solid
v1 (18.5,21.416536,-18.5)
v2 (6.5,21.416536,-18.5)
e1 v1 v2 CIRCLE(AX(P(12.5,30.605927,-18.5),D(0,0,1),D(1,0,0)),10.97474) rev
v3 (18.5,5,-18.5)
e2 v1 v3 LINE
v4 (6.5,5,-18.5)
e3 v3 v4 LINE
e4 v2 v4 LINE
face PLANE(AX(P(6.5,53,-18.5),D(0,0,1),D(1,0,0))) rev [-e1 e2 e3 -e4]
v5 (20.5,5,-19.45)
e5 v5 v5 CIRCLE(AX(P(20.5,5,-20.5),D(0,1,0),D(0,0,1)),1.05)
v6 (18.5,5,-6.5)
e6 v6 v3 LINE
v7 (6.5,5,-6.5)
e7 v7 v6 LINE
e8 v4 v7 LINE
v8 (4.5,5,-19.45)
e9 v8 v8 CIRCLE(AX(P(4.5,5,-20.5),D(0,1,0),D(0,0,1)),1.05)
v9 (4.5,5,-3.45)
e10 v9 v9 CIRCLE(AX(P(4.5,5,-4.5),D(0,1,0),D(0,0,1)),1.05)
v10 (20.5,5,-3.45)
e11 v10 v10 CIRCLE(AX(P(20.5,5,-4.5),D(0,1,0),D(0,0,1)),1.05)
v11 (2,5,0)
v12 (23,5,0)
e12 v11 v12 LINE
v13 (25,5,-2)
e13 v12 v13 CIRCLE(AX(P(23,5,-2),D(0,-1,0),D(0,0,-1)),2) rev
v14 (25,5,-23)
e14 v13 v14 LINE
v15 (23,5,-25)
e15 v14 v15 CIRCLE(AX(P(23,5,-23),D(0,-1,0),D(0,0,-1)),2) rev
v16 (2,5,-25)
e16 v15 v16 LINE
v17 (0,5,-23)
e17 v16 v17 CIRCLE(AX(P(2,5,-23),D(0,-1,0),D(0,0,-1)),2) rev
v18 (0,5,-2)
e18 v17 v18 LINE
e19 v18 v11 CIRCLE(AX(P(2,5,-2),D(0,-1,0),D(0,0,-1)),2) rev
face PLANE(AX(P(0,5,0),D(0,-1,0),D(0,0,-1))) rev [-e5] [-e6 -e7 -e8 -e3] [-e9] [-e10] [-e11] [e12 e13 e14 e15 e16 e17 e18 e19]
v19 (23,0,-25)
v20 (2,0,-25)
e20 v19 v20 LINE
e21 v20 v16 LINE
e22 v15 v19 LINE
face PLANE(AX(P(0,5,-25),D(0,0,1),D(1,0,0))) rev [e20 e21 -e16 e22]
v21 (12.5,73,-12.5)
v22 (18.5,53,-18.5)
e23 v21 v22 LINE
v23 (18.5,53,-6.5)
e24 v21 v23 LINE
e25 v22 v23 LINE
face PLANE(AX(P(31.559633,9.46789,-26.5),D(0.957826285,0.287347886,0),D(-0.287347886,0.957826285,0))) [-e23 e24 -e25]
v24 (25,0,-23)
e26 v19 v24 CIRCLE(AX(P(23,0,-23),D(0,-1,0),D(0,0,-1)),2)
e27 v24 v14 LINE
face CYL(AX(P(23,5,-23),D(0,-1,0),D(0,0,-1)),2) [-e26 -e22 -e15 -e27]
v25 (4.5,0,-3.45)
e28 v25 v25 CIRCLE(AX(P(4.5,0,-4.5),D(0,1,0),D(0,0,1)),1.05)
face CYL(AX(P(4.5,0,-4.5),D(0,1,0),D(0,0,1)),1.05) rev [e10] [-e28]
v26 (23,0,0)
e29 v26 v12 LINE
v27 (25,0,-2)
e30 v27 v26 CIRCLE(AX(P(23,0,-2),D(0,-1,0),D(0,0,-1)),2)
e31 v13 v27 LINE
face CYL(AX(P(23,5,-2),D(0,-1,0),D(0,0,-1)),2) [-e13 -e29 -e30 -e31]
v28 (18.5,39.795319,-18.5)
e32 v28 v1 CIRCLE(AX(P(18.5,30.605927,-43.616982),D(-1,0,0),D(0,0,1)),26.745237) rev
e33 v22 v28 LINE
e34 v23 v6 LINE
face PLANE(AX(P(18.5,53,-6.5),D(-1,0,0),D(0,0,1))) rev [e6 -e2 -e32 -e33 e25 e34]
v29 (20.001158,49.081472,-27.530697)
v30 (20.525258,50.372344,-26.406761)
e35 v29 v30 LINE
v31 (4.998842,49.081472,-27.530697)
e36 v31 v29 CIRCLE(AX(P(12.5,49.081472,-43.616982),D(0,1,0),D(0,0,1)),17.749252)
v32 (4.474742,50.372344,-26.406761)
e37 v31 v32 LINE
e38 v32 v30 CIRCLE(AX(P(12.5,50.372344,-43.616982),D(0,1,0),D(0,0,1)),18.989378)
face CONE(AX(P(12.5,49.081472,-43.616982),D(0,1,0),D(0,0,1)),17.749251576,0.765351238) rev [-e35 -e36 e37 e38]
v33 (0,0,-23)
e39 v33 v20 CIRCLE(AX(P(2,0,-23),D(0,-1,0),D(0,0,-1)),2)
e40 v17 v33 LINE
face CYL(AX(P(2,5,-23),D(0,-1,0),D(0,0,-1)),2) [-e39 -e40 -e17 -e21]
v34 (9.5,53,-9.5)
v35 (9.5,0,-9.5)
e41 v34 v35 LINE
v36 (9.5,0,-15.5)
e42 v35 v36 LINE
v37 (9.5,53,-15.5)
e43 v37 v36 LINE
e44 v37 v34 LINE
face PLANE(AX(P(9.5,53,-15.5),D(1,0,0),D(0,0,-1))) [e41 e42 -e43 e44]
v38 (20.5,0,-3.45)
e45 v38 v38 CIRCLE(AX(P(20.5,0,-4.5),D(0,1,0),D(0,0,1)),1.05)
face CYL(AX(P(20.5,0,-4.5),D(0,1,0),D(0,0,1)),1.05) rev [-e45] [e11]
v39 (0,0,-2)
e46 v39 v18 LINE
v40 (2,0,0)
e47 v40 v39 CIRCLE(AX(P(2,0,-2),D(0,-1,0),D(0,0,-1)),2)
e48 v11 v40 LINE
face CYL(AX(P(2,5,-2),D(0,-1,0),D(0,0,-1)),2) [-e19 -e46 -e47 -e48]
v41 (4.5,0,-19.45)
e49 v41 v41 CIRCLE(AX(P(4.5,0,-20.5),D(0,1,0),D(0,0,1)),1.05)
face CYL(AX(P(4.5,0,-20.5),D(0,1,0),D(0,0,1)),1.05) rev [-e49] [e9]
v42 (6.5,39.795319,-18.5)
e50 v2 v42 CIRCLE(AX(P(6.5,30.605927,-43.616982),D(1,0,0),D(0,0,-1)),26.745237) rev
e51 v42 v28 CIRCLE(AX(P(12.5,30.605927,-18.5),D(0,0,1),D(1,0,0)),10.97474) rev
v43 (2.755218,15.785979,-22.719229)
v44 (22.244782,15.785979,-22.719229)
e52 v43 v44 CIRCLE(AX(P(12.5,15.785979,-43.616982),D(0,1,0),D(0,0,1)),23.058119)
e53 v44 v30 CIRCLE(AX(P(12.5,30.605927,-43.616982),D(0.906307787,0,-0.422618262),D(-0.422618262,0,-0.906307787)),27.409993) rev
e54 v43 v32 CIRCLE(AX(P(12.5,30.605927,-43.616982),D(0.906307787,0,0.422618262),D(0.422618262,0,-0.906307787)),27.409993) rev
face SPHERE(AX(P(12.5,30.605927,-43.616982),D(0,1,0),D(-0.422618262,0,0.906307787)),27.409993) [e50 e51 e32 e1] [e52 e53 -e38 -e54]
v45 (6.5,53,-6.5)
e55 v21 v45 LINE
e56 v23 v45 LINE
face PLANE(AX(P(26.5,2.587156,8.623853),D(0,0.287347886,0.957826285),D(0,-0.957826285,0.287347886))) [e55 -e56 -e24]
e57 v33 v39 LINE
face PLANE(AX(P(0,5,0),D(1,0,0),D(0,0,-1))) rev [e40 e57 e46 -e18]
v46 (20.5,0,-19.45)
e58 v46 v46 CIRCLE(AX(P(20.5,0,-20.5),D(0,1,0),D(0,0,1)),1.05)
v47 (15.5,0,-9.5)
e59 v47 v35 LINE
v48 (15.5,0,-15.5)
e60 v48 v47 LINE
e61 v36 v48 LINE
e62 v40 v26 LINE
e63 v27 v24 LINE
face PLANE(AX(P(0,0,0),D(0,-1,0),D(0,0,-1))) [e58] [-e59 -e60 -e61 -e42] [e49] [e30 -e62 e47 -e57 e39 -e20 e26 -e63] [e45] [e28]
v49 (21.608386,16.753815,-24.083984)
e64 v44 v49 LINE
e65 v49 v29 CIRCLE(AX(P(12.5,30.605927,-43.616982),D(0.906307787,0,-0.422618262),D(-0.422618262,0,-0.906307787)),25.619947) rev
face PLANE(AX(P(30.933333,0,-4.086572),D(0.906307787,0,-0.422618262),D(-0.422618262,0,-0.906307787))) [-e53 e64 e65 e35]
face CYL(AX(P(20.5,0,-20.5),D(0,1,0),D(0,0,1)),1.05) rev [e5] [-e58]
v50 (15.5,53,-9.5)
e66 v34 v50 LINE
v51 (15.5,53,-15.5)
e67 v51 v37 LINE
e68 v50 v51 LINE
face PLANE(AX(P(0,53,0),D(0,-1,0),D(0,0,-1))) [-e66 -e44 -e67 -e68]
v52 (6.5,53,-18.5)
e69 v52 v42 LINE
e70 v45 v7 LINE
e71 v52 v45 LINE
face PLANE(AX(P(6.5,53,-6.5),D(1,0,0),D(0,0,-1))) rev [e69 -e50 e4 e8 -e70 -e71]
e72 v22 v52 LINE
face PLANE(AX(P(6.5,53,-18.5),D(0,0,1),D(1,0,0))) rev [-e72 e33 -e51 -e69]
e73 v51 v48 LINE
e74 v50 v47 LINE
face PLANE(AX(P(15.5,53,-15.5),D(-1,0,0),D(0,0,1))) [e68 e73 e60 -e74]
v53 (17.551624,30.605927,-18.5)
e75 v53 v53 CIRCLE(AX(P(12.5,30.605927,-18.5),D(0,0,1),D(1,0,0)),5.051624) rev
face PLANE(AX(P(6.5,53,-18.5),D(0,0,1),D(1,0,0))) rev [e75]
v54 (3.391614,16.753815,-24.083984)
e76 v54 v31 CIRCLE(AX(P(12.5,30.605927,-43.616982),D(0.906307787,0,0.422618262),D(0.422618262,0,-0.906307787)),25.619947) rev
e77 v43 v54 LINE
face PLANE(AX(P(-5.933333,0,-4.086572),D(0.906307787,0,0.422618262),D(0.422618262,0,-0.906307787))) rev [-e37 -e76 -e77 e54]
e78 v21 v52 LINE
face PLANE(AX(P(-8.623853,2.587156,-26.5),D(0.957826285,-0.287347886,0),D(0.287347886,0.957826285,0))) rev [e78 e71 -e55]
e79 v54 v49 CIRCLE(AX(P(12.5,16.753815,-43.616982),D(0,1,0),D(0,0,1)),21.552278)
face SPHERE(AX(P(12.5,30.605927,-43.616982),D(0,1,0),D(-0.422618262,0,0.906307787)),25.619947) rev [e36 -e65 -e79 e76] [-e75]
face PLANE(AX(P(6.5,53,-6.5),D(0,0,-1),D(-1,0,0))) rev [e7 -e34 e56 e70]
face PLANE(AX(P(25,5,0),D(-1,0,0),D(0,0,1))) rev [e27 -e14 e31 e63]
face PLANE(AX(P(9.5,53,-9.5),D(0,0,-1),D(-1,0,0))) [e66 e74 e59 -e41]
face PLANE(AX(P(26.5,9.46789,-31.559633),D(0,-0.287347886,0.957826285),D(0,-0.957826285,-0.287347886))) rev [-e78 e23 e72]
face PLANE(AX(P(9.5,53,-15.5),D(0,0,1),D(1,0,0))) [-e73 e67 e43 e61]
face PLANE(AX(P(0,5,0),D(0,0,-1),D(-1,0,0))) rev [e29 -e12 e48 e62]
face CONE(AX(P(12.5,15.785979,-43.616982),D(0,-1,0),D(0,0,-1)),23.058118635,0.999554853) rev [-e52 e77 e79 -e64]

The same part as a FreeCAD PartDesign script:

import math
import FreeCAD as App
import Part
import Sketcher
from FreeCAD import Vector
Q = App.Units.Quantity


def edges_at(feature, points):
    """Names of the edges that pass closest to the given points."""
    edges = feature.Shape.Edges
    near = lambda p: min(range(len(edges)), key=lambda i: edges[i].distToShape(Part.Vertex(*p))[0])
    return sorted({f"Edge{near(p) + 1}" for p in points})


def add_polygon(sketch, points):
    """Adds a closed chain of lines whose ends are joined by coincident constraints."""
    first, n = sketch.GeometryCount, len(points)
    for a, b in zip(points, points[1:] + points[:1]):
        sketch.addGeometry(Part.LineSegment(App.Vector(*a, 0), App.Vector(*b, 0)), False)
    for i in range(n):
        sketch.addConstraint(Sketcher.Constraint("Coincident", first + i, 2, first + (i + 1) % n, 1))

doc = App.newDocument("Part")
body = doc.addObject("PartDesign::Body", "Body")

sketch1 = body.newObject("Sketcher::SketchObject", "Sketch")
sketch1.AttachmentSupport = (doc.getObject("XZ_Plane"), [""])
sketch1.MapMode = "FlatFace"
add_polygon(sketch1, [(0, -25), (0, 0), (25, 0), (25, -25)])
sketch1.addConstraint([
    Sketcher.Constraint("Vertical", 0),
    Sketcher.Constraint("Horizontal", 1),
    Sketcher.Constraint("Vertical", 2),
    Sketcher.Constraint("Horizontal", 3),
    Sketcher.Constraint("Coincident", 0, 2, -1, 1),
    Sketcher.Constraint("Equal", 3, 0),
    Sketcher.Constraint("DistanceX", 1, 1, 1, 2, Q("25 mm")),
])
pad1 = body.newObject("PartDesign::Pad", "Pad")
pad1.Profile = sketch1
pad1.Length = 5
pad1.Reversed = True

sketch2 = body.newObject("Sketcher::SketchObject", "Sketch001")
sketch2.AttachmentSupport = (doc.getObject("XZ_Plane"), [""])
sketch2.MapMode = "FlatFace"
sketch2.AttachmentOffset = App.Placement(Vector(0, 0, -5), App.Rotation())
sketch2.addGeometry([
    Part.Circle(Vector(4.5, -4.5, 0), Vector(0, 0, 1), 1.05),
    Part.Circle(Vector(20.5, -4.5, 0), Vector(0, 0, 1), 1.05),
    Part.Circle(Vector(20.5, -20.5, 0), Vector(0, 0, 1), 1.05),
    Part.Circle(Vector(4.5, -20.5, 0), Vector(0, 0, 1), 1.05),
], False)
sketch2.addConstraint([
    Sketcher.Constraint("Equal", 0, 1),
    Sketcher.Constraint("Equal", 1, 2),
    Sketcher.Constraint("Equal", 2, 3),
    Sketcher.Constraint("Horizontal", 0, 3, 1, 3),
    Sketcher.Constraint("Horizontal", 2, 3, 3, 3),
    Sketcher.Constraint("Vertical", 1, 3, 2, 3),
    Sketcher.Constraint("Vertical", 0, 3, 3, 3),
    Sketcher.Constraint("Diameter", 0, Q("2.1 mm")),
    Sketcher.Constraint("DistanceX", 0, 3, 1, 3, Q("16 mm")),
    Sketcher.Constraint("DistanceY", 2, 3, 1, 3, Q("16 mm")),
    Sketcher.Constraint("DistanceX", -1, 1, 0, 3, Q("4.5 mm")),
    Sketcher.Constraint("DistanceY", 0, 3, -1, 1, Q("4.5 mm")),
])
pocket1 = body.newObject("PartDesign::Pocket", "Pocket")
pocket1.Profile = sketch2
pocket1.Length = 5
pocket1.Reversed = True
doc.recompute()

fillet = body.newObject("PartDesign::Fillet", "Fillet")
fillet.Base = (pocket1, edges_at(pocket1, [
    (0, 2.5, -25),
    (25, 2.5, -25),
    (25, 2.5, 0),
    (0, 2.5, 0),
]))
fillet.Radius = 2

sketch3 = body.newObject("Sketcher::SketchObject", "Sketch002")
sketch3.AttachmentSupport = (doc.getObject("XZ_Plane"), [""])
sketch3.MapMode = "FlatFace"
sketch3.AttachmentOffset = App.Placement(Vector(0, 0, -5), App.Rotation())
add_polygon(sketch3, [(6.5, -18.5), (6.5, -6.5), (18.5, -6.5), (18.5, -18.5)])
add_polygon(sketch3, [(15.5, -9.5), (9.5, -9.5), (9.5, -15.5), (15.5, -15.5)])
sketch3.addConstraint([
    Sketcher.Constraint("Vertical", 0),
    Sketcher.Constraint("Horizontal", 1),
    Sketcher.Constraint("Vertical", 2),
    Sketcher.Constraint("Horizontal", 3),
    Sketcher.Constraint("Horizontal", 4),
    Sketcher.Constraint("Vertical", 5),
    Sketcher.Constraint("Horizontal", 6),
    Sketcher.Constraint("Vertical", 7),
    Sketcher.Constraint("Equal", 3, 0),
    Sketcher.Constraint("Equal", 6, 5),
    Sketcher.Constraint("DistanceX", 1, 1, 1, 2, Q("12 mm")),
    Sketcher.Constraint("DistanceX", 4, 2, 4, 1, Q("6 mm")),
    Sketcher.Constraint("DistanceX", 0, 2, 4, 2, Q("3 mm")),
    Sketcher.Constraint("DistanceY", 4, 2, 0, 2, Q("3 mm")),
    Sketcher.Constraint("DistanceX", -1, 1, 0, 2, Q("6.5 mm")),
    Sketcher.Constraint("DistanceY", 0, 2, -1, 1, Q("6.5 mm")),
])
pad2 = body.newObject("PartDesign::Pad", "Pad001")
pad2.Profile = sketch3
pad2.Length = 48
pad2.Reversed = True

sketch4 = body.newObject("Sketcher::SketchObject", "Sketch003")
sketch4.AttachmentSupport = (doc.getObject("XZ_Plane"), [""])
sketch4.MapMode = "FlatFace"
add_polygon(sketch4, [(15.5, -15.5), (15.5, -9.5), (9.5, -9.5), (9.5, -15.5)])
sketch4.addConstraint([
    Sketcher.Constraint("Vertical", 0),
    Sketcher.Constraint("Horizontal", 1),
    Sketcher.Constraint("Vertical", 2),
    Sketcher.Constraint("Horizontal", 3),
    Sketcher.Constraint("Equal", 3, 0),
    Sketcher.Constraint("DistanceX", 1, 2, 1, 1, Q("6 mm")),
    Sketcher.Constraint("DistanceX", -1, 1, 0, 2, Q("15.5 mm")),
    Sketcher.Constraint("DistanceY", 0, 2, -1, 1, Q("9.5 mm")),
])
pocket2 = body.newObject("PartDesign::Pocket", "Pocket001")
pocket2.Profile = sketch4
pocket2.Length = 10

sketch5 = body.newObject("Sketcher::SketchObject", "Sketch004")
sketch5.AttachmentSupport = (doc.getObject("XZ_Plane"), [""])
sketch5.MapMode = "FlatFace"
sketch5.AttachmentOffset = App.Placement(Vector(0, 0, -53), App.Rotation())
add_polygon(sketch5, [(6.5, -18.5), (6.5, -6.5), (18.5, -6.5), (18.5, -18.5)])
sketch5.addConstraint([
    Sketcher.Constraint("Vertical", 0),
    Sketcher.Constraint("Horizontal", 1),
    Sketcher.Constraint("Vertical", 2),
    Sketcher.Constraint("Horizontal", 3),
    Sketcher.Constraint("Equal", 3, 0),
    Sketcher.Constraint("DistanceX", 1, 1, 1, 2, Q("12 mm")),
    Sketcher.Constraint("DistanceX", -1, 1, 0, 2, Q("6.5 mm")),
    Sketcher.Constraint("DistanceY", 0, 2, -1, 1, Q("6.5 mm")),
])
pad3 = body.newObject("PartDesign::Pad", "Pad002")
pad3.Profile = sketch5
pad3.Length = 20
pad3.Reversed = True

sketch6 = body.newObject("Sketcher::SketchObject", "Sketch005")
sketch6.AttachmentSupport = (doc.getObject("XY_Plane"), [""])
sketch6.MapMode = "FlatFace"
sketch6.AttachmentOffset = App.Placement(Vector(0, 0, -6.5), App.Rotation())
add_polygon(sketch6, [(18.5, 73), (12.5, 73), (18.5, 53)])
add_polygon(sketch6, [(6.5, 53), (12.5, 73), (6.5, 73)])
sketch6.addConstraint([
    Sketcher.Constraint("Horizontal", 0),
    Sketcher.Constraint("Vertical", 2),
    Sketcher.Constraint("Horizontal", 4),
    Sketcher.Constraint("Vertical", 5),
    Sketcher.Constraint("Coincident", 3, 2, 0, 2),
    Sketcher.Constraint("Horizontal", 1, 2, 5, 2),
    Sketcher.Constraint("Equal", 0, 4),
    Sketcher.Constraint("DistanceX", 0, 2, 0, 1, Q("6 mm")),
    Sketcher.Constraint("DistanceY", 2, 1, 2, 2, Q("20 mm")),
    Sketcher.Constraint("DistanceY", -1, 1, 0, 2, Q("73 mm")),
    Sketcher.Constraint("DistanceX", -1, 1, 0, 2, Q("12.5 mm")),
])
pocket3 = body.newObject("PartDesign::Pocket", "Pocket002")
pocket3.Profile = sketch6
pocket3.Length = 20

sketch7 = body.newObject("Sketcher::SketchObject", "Sketch006")
sketch7.AttachmentSupport = (doc.getObject("YZ_Plane"), [""])
sketch7.MapMode = "FlatFace"
sketch7.AttachmentOffset = App.Placement(Vector(0, 0, 6.5), App.Rotation())
add_polygon(sketch7, [(53, -6.5), (73, -6.5), (73, -12.5)])
add_polygon(sketch7, [(73, -18.5), (53, -18.5), (73, -12.5)])
sketch7.addConstraint([
    Sketcher.Constraint("Horizontal", 0),
    Sketcher.Constraint("Vertical", 1),
    Sketcher.Constraint("Horizontal", 3),
    Sketcher.Constraint("Vertical", 5),
    Sketcher.Constraint("Coincident", 4, 2, 1, 2),
    Sketcher.Constraint("Vertical", 2, 2, 3, 2),
    Sketcher.Constraint("Equal", 1, 5),
    Sketcher.Constraint("DistanceX", 0, 1, 0, 2, Q("20 mm")),
    Sketcher.Constraint("DistanceY", 1, 2, 1, 1, Q("6 mm")),
    Sketcher.Constraint("DistanceX", -1, 1, 0, 2, Q("73 mm")),
    Sketcher.Constraint("DistanceY", 0, 2, -1, 1, Q("6.5 mm")),
])
pocket4 = body.newObject("PartDesign::Pocket", "Pocket003")
pocket4.Profile = sketch7
pocket4.Length = 20
pocket4.Reversed = True

sketch8 = body.newObject("Sketcher::SketchObject", "Sketch007")
sketch8.AttachmentSupport = (doc.getObject("YZ_Plane"), [""])
sketch8.MapMode = "FlatFace"
sketch8.AttachmentOffset = App.Placement(Vector(0, 0, 12.5), App.Rotation())
sketch8.addGeometry([
    Part.ArcOfCircle(Part.Circle(Vector(30.605927, -43.616982, 0), Vector(0, 0, 1), 27.409993), math.radians(43.851396), math.radians(122.729726)),
    Part.LineSegment(Vector(15.785979, -20.558863, 0), Vector(16.753815, -22.064704, 0)),
    Part.ArcOfCircle(Part.Circle(Vector(30.605927, -43.616982, 0), Vector(0, 0, 1), 25.619947), math.radians(43.851396), math.radians(122.729726)),
    Part.LineSegment(Vector(49.081472, -25.86773, 0), Vector(50.372344, -24.627604, 0)),
], False)
sketch8.addGeometry(Part.LineSegment(Vector(50.372344, -43.616982, 0), Vector(15.785979, -43.616982, 0)), True)
sketch8.addConstraint([
    Sketcher.Constraint("Coincident", 0, 2, 1, 1),
    Sketcher.Constraint("Coincident", 1, 2, 2, 2),
    Sketcher.Constraint("Coincident", 2, 1, 3, 1),
    Sketcher.Constraint("Coincident", 3, 2, 0, 1),
    Sketcher.Constraint("Horizontal", 4),
    Sketcher.Constraint("Coincident", 2, 3, 0, 3),
    Sketcher.Constraint("Horizontal", 2, 3, 4, 1),
    Sketcher.Constraint("Vertical", 3, 2, 4, 1),
    Sketcher.Constraint("Vertical", 0, 2, 4, 2),
    Sketcher.Constraint("Radius", 0, Q("27.409993 mm")),
    Sketcher.Constraint("Radius", 2, Q("25.619947 mm")),
    Sketcher.Constraint("DistanceY", 3, 2, 1, 2, Q("2.5629 mm")),
    Sketcher.Constraint("DistanceX", 4, 2, 4, 1, Q("34.586364 mm")),
    Sketcher.Constraint("DistanceY", 0, 3, -1, 1, Q("43.616982 mm")),
    Sketcher.Constraint("DistanceX", -1, 1, 0, 2, Q("15.785979 mm")),
    Sketcher.Constraint("DistanceX", -1, 1, 2, 1, Q("49.081472 mm")),
    Sketcher.Constraint("DistanceY", 2, 1, -1, 1, Q("25.86773 mm")),
])
revolution = body.newObject("PartDesign::Revolution", "Revolution")
revolution.Profile = sketch8
revolution.ReferenceAxis = (sketch8, ["Axis0"])
revolution.Angle = 25

sketch9 = body.newObject("Sketcher::SketchObject", "Sketch008")
sketch9.AttachmentSupport = (doc.getObject("YZ_Plane"), [""])
sketch9.MapMode = "FlatFace"
sketch9.AttachmentOffset = App.Placement(Vector(0, 0, 12.5), App.Rotation())
sketch9.addGeometry([
    Part.ArcOfCircle(Part.Circle(Vector(30.605927, -43.616982, 0), Vector(0, 0, 1), 27.409993), math.radians(43.851396), math.radians(122.729726)),
    Part.LineSegment(Vector(15.785979, -20.558863, 0), Vector(16.753815, -22.064704, 0)),
    Part.ArcOfCircle(Part.Circle(Vector(30.605927, -43.616982, 0), Vector(0, 0, 1), 25.619947), math.radians(43.851396), math.radians(122.729726)),
    Part.LineSegment(Vector(49.081472, -25.86773, 0), Vector(50.372344, -24.627604, 0)),
], False)
sketch9.addGeometry(Part.LineSegment(Vector(15.785979, -43.616982, 0), Vector(50.372344, -43.616982, 0)), True)
sketch9.addConstraint([
    Sketcher.Constraint("Coincident", 0, 2, 1, 1),
    Sketcher.Constraint("Coincident", 1, 2, 2, 2),
    Sketcher.Constraint("Coincident", 2, 1, 3, 1),
    Sketcher.Constraint("Coincident", 3, 2, 0, 1),
    Sketcher.Constraint("Horizontal", 4),
    Sketcher.Constraint("Coincident", 2, 3, 0, 3),
    Sketcher.Constraint("Horizontal", 2, 3, 4, 1),
    Sketcher.Constraint("Vertical", 0, 2, 4, 1),
    Sketcher.Constraint("Vertical", 3, 2, 4, 2),
    Sketcher.Constraint("Radius", 0, Q("27.409993 mm")),
    Sketcher.Constraint("Radius", 2, Q("25.619947 mm")),
    Sketcher.Constraint("DistanceY", 3, 2, 1, 2, Q("2.5629 mm")),
    Sketcher.Constraint("DistanceX", 4, 1, 4, 2, Q("34.586364 mm")),
    Sketcher.Constraint("DistanceY", 0, 3, -1, 1, Q("43.616982 mm")),
    Sketcher.Constraint("DistanceX", -1, 1, 0, 2, Q("15.785979 mm")),
    Sketcher.Constraint("DistanceX", -1, 1, 2, 1, Q("49.081472 mm")),
    Sketcher.Constraint("DistanceY", 2, 1, -1, 1, Q("25.86773 mm")),
])
revolution2 = body.newObject("PartDesign::Revolution", "Revolution001")
revolution2.Profile = sketch9
revolution2.ReferenceAxis = (sketch9, ["Axis0"])
revolution2.Angle = 25

doc.recompute()
